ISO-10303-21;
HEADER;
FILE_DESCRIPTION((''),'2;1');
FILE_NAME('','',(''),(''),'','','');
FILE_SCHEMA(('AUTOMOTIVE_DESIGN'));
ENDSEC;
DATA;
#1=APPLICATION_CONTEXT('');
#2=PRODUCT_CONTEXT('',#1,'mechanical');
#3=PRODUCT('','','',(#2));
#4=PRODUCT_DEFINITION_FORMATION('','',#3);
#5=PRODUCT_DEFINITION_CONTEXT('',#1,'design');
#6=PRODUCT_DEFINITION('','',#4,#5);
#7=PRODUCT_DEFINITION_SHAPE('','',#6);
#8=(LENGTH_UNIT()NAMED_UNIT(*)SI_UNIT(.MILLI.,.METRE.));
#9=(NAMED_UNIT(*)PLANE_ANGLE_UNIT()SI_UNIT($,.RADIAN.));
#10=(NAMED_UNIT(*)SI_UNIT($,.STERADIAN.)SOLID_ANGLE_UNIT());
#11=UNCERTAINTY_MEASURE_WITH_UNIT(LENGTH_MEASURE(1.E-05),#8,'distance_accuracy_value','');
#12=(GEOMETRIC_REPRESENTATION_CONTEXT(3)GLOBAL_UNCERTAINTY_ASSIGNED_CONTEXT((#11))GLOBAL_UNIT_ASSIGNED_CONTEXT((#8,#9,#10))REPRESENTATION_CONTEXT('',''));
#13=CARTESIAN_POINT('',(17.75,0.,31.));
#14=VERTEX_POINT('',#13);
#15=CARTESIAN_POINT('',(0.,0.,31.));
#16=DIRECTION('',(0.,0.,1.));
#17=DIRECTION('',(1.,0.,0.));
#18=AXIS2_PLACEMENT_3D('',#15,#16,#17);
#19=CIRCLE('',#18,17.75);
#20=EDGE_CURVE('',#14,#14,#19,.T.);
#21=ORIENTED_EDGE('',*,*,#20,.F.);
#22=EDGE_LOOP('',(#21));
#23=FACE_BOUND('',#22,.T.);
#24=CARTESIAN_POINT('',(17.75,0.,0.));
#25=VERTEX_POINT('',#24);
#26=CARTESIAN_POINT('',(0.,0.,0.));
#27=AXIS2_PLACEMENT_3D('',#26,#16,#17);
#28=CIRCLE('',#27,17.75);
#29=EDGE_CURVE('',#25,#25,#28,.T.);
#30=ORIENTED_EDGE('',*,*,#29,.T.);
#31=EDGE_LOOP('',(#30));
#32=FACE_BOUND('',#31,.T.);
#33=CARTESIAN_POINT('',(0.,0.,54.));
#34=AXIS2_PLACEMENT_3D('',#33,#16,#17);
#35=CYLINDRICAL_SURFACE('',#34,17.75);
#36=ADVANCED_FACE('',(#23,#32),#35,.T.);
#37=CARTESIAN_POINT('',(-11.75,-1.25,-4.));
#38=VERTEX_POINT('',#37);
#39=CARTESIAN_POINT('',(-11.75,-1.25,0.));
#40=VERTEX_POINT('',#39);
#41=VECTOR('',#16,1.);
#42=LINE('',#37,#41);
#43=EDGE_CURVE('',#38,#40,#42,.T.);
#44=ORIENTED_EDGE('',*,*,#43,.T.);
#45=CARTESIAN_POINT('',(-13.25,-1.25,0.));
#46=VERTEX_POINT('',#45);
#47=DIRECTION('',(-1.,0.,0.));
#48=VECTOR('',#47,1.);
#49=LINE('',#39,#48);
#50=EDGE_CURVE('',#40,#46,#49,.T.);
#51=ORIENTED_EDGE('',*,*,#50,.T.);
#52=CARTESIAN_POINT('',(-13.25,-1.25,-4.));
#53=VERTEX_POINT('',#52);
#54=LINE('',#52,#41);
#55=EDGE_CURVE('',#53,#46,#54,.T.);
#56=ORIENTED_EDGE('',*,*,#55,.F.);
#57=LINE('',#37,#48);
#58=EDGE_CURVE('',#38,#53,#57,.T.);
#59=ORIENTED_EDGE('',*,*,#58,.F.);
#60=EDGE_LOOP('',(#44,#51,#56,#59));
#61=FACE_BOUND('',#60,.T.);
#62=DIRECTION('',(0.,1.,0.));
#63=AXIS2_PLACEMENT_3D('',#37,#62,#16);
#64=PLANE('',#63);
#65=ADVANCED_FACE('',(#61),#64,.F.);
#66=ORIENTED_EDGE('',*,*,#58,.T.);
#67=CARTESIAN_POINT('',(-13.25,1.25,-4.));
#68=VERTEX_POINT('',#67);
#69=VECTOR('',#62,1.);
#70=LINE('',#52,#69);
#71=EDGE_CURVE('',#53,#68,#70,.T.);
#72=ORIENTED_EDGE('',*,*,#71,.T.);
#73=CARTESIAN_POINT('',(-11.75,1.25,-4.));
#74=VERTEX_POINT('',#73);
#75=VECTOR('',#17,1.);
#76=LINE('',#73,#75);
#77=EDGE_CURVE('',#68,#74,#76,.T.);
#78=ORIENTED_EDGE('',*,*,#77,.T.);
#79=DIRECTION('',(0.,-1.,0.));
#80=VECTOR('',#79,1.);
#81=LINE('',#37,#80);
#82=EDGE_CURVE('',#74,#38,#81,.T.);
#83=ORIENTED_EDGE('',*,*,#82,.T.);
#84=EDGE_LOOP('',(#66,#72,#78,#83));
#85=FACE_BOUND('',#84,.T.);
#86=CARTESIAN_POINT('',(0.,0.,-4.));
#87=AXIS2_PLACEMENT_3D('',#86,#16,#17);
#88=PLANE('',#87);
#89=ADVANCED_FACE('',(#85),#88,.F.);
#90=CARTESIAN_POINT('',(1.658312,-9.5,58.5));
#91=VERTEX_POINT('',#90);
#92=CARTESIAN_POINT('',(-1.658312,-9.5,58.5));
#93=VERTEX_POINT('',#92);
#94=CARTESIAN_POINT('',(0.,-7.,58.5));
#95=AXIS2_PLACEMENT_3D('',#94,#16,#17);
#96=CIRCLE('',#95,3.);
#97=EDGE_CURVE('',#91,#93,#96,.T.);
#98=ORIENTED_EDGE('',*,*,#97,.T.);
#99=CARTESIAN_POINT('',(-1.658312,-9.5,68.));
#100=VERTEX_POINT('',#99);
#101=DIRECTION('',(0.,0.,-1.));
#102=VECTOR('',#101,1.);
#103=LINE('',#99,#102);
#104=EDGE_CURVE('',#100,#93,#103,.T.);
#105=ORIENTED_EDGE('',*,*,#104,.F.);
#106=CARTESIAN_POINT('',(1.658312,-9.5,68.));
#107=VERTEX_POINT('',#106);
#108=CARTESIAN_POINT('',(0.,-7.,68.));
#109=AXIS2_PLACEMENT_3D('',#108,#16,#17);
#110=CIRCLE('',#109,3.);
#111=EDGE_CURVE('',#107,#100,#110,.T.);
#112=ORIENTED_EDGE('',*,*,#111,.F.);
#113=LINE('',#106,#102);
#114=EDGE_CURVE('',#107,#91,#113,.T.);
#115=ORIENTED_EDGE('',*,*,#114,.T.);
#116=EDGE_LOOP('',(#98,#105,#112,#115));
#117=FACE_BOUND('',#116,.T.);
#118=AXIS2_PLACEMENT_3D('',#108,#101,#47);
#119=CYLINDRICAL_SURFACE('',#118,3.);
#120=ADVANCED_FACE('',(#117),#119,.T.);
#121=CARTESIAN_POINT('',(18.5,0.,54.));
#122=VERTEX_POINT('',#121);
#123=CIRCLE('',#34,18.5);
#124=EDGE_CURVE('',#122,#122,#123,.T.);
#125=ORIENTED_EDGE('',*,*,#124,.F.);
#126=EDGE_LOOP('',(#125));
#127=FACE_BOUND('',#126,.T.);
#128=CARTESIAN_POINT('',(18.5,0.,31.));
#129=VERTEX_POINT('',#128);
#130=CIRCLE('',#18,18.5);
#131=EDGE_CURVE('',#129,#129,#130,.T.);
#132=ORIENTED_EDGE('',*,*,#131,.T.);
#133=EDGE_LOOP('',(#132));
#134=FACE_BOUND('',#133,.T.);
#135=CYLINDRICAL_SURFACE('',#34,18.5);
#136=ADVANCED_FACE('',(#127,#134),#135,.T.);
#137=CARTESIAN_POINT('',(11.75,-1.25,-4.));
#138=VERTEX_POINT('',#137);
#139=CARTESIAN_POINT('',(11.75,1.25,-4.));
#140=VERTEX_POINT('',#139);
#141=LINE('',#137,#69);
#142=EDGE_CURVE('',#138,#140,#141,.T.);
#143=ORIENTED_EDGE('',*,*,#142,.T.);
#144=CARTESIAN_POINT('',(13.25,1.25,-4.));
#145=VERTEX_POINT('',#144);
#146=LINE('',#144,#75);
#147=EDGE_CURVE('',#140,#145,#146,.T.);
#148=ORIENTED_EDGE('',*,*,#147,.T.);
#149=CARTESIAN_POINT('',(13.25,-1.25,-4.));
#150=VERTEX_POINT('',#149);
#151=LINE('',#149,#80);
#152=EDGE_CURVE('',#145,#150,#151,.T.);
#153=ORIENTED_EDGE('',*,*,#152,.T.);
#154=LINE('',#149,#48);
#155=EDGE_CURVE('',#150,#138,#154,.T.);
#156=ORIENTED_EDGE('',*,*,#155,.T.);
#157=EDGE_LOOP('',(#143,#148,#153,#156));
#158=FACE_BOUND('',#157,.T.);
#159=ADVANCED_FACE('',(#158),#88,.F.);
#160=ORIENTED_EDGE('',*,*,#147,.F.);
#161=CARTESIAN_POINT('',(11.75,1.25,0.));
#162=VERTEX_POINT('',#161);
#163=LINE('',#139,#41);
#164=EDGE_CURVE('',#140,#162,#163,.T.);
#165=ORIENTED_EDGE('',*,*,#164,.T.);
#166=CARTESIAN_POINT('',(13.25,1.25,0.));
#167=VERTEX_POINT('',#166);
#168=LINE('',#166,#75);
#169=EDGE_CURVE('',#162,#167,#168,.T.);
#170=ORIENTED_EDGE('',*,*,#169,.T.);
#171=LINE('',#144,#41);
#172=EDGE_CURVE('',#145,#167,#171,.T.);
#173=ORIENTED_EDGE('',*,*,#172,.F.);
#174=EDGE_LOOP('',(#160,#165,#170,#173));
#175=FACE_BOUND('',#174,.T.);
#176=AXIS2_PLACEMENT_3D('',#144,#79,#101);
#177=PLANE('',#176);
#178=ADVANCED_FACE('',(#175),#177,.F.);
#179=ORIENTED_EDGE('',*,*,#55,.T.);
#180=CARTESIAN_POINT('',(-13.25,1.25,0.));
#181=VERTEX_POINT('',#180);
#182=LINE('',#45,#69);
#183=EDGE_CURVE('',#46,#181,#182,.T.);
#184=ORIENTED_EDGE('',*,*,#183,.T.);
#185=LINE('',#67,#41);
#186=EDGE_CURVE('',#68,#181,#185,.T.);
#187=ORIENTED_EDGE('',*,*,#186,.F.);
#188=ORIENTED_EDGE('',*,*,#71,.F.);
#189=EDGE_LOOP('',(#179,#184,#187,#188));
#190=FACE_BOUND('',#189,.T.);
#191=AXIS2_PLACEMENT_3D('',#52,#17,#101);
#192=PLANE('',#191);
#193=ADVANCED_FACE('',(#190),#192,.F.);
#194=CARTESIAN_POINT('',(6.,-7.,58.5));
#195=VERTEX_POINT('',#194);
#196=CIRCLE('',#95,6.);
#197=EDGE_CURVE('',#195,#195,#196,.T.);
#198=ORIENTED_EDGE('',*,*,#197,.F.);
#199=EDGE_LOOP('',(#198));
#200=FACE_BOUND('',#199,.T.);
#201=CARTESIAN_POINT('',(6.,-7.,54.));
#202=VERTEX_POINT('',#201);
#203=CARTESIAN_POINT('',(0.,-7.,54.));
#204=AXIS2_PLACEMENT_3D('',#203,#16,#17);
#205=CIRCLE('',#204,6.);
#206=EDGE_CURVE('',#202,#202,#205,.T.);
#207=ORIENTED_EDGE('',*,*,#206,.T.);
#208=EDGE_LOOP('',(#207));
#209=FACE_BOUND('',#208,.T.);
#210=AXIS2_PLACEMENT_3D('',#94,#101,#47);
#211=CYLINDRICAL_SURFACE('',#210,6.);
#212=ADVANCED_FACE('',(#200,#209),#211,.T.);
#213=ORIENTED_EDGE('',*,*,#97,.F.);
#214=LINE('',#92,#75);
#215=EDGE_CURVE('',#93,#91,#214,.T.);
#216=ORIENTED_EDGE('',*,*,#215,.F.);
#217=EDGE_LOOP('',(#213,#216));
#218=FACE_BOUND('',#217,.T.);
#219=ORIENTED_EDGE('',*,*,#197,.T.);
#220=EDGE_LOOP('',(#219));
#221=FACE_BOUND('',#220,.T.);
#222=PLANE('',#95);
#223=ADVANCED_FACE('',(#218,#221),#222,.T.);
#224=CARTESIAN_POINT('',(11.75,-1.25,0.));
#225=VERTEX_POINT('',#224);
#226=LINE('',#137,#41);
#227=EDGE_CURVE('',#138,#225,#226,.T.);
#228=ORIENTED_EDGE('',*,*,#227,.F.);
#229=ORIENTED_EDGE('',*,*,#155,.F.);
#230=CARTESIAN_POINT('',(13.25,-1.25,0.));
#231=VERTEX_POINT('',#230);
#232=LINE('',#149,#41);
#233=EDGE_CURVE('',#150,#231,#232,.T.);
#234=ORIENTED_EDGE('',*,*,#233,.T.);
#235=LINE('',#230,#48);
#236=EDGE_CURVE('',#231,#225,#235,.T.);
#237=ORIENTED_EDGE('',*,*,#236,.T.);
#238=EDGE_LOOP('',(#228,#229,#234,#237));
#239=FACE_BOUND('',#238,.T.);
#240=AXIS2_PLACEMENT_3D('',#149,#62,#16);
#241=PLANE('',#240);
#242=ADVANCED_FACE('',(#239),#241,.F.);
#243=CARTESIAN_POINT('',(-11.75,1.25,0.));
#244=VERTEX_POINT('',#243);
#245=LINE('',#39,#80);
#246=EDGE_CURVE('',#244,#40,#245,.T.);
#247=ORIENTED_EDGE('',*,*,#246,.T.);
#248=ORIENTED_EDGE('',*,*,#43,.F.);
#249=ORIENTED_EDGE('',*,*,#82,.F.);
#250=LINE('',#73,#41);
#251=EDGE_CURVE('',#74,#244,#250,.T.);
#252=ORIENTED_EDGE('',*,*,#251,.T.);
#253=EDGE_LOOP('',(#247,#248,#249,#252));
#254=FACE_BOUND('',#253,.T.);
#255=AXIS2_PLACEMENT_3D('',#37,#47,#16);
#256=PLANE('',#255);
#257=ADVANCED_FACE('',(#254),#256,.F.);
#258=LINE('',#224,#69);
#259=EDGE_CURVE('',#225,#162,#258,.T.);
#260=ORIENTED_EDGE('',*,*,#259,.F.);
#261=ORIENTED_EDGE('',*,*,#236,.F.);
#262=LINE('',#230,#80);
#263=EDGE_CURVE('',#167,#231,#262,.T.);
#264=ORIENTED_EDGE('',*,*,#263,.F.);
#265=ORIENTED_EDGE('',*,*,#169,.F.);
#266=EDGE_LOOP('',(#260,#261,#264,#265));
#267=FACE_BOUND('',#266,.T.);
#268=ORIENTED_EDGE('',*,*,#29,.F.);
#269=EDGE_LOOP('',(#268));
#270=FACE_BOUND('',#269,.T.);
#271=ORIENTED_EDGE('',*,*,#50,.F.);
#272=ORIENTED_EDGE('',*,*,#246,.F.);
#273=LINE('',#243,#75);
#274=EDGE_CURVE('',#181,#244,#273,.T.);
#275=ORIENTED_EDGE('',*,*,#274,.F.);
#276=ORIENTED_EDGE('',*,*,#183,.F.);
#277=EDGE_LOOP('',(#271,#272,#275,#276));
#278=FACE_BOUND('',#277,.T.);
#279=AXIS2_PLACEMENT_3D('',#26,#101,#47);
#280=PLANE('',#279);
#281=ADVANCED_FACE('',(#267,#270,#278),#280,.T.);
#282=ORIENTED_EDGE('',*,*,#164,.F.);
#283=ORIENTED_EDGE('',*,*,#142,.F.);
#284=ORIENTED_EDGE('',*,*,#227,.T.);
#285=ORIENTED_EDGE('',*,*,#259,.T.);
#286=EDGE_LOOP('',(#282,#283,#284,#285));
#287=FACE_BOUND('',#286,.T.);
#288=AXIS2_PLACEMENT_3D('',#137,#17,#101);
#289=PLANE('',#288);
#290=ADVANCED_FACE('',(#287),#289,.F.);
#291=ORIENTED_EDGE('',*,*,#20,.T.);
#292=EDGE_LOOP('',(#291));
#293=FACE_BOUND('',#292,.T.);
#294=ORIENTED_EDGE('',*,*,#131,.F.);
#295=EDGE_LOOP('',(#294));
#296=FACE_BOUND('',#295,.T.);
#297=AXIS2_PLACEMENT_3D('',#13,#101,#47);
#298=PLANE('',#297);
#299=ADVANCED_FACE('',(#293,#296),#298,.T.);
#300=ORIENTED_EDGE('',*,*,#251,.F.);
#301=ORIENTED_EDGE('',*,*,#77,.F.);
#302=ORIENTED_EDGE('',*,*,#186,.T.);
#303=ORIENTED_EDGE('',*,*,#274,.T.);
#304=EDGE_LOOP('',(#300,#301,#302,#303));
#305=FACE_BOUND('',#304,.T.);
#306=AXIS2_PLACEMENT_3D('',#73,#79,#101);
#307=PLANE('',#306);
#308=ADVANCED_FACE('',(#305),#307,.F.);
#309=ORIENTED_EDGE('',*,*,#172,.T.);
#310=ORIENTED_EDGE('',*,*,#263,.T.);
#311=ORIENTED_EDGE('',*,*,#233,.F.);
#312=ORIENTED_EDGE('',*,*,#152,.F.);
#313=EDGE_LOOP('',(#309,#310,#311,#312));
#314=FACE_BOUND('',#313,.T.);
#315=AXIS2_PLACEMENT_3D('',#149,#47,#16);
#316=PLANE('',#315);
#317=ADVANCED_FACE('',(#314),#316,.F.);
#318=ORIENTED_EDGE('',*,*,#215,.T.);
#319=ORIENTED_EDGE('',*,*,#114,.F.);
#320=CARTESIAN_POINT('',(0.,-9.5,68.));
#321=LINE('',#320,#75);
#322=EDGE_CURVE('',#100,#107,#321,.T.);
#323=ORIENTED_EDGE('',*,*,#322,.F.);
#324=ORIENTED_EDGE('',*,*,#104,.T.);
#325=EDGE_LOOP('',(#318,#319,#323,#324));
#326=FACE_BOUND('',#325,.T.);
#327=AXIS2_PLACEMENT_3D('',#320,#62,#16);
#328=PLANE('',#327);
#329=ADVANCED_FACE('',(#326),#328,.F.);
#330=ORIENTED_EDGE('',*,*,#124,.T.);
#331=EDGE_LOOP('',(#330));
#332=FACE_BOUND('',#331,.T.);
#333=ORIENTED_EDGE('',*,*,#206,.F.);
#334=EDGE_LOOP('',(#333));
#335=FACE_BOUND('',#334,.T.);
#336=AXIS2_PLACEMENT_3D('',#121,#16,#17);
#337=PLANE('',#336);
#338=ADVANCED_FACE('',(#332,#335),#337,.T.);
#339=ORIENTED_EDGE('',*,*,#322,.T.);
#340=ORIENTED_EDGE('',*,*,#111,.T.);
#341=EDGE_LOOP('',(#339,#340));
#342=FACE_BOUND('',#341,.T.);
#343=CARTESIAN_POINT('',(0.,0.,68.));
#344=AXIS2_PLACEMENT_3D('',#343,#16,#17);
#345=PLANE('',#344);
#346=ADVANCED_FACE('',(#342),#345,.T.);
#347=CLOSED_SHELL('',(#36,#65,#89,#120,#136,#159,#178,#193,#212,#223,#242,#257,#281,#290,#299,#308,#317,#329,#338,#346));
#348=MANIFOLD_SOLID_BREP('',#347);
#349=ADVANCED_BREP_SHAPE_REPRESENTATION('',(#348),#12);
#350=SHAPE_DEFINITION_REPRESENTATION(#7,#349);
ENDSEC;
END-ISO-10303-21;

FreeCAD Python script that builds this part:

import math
import FreeCAD as App
import Part
import Sketcher

V = App.Vector
Q = App.Units.Quantity

doc = App.newDocument("Part")
body = doc.addObject("PartDesign::Body", "Body")

# Sketch on XZ plane
sketch1 = doc.addObject("Sketcher::SketchObject", "Sketch")
body.addObject(sketch1)
sketch1.AttachmentSupport = (doc.XZ_Plane, [""])
sketch1.MapMode = "FlatFace"
sketch1.addGeometry([
    Part.LineSegment(V(0, 0, 0), V(0, 54, 0)),  # 0
    Part.LineSegment(V(0, 54, 0), V(18.5, 54, 0)),  # 1
    Part.LineSegment(V(18.5, 54, 0), V(18.5, 31, 0)),  # 2
    Part.LineSegment(V(18.5, 31, 0), V(17.8, 31, 0)),  # 3
    Part.LineSegment(V(17.8, 31, 0), V(17.8, 0, 0)),  # 4
    Part.LineSegment(V(17.8, 0, 0), V(0, 0, 0)),  # 5
], False)
sketch1.addConstraint([
    Sketcher.Constraint("Coincident", 0, 2, 1, 1),
    Sketcher.Constraint("Coincident", 1, 2, 2, 1),
    Sketcher.Constraint("Coincident", 2, 2, 3, 1),
    Sketcher.Constraint("Coincident", 3, 2, 4, 1),
    Sketcher.Constraint("Coincident", 4, 2, 5, 1),
    Sketcher.Constraint("Coincident", 5, 2, 0, 1),
    Sketcher.Constraint("Vertical", 0),
    Sketcher.Constraint("Horizontal", 1),
    Sketcher.Constraint("Vertical", 2),
    Sketcher.Constraint("Horizontal", 3),
    Sketcher.Constraint("Vertical", 4),
    Sketcher.Constraint("Horizontal", 5),
    Sketcher.Constraint("Coincident", 5, 2, -1, 1),
    Sketcher.Constraint("DistanceY", 0, 1, 0, 2, Q("54 mm")),
    Sketcher.Constraint("DistanceY", 2, 2, 2, 1, Q("23 mm")),
    Sketcher.Constraint("DistanceX", 1, 1, 1, 2, Q("18.5 mm")),
    Sketcher.Constraint("DistanceX", 3, 2, 3, 1, Q("0.75 mm")),
])
revolution = doc.addObject("PartDesign::Revolution", "Revolution")
body.addObject(revolution)
revolution.Profile = sketch1
revolution.ReferenceAxis = (sketch1, ["V_Axis"])
revolution.Angle = 360

# Sketch on XY plane
sketch2 = doc.addObject("Sketcher::SketchObject", "Sketch001")
body.addObject(sketch2)
sketch2.AttachmentSupport = (doc.XY_Plane, [""])
sketch2.MapMode = "FlatFace"
sketch2.addGeometry([
    Part.LineSegment(V(13.2, 1.2, 0), V(13.2, -1.2, 0)),  # 0
    Part.LineSegment(V(13.2, -1.2, 0), V(11.8, -1.2, 0)),  # 1
    Part.LineSegment(V(11.8, -1.2, 0), V(11.8, 1.2, 0)),  # 2
    Part.LineSegment(V(11.8, 1.2, 0), V(13.2, 1.2, 0)),  # 3
    Part.LineSegment(V(-11.8, 1.2, 0), V(-11.8, -1.2, 0)),  # 4
    Part.LineSegment(V(-11.8, -1.2, 0), V(-13.2, -1.2, 0)),  # 5
    Part.LineSegment(V(-13.2, -1.2, 0), V(-13.2, 1.2, 0)),  # 6
    Part.LineSegment(V(-13.2, 1.2, 0), V(-11.8, 1.2, 0)),  # 7
], False)
sketch2.addConstraint([
    Sketcher.Constraint("Coincident", 0, 2, 1, 1),
    Sketcher.Constraint("Coincident", 1, 2, 2, 1),
    Sketcher.Constraint("Coincident", 2, 2, 3, 1),
    Sketcher.Constraint("Coincident", 3, 2, 0, 1),
    Sketcher.Constraint("Coincident", 4, 2, 5, 1),
    Sketcher.Constraint("Coincident", 5, 2, 6, 1),
    Sketcher.Constraint("Coincident", 6, 2, 7, 1),
    Sketcher.Constraint("Coincident", 7, 2, 4, 1),
    Sketcher.Constraint("Vertical", 0),
    Sketcher.Constraint("Horizontal", 1),
    Sketcher.Constraint("Vertical", 2),
    Sketcher.Constraint("Horizontal", 3),
    Sketcher.Constraint("Vertical", 4),
    Sketcher.Constraint("Horizontal", 5),
    Sketcher.Constraint("Vertical", 6),
    Sketcher.Constraint("Horizontal", 7),
    Sketcher.Constraint("Symmetric", 2, 2, 4, 2, -1, 1),
    Sketcher.Constraint("Symmetric", 0, 2, 6, 2, -1, 1),
    Sketcher.Constraint("Horizontal", 1, 2, 4, 2),
    Sketcher.Constraint("DistanceX", 1, 2, 1, 1, Q("1.5 mm")),
    Sketcher.Constraint("DistanceY", 0, 2, 0, 1, Q("2.5 mm")),
    Sketcher.Constraint("DistanceX", 4, 2, 0, 2, Q("25 mm")),
])
pad1 = doc.addObject("PartDesign::Pad", "Pad")
body.addObject(pad1)
pad1.Profile = sketch2
pad1.Length = 4
pad1.Reversed = True

# Sketch on XY plane
sketch3 = doc.addObject("Sketcher::SketchObject", "Sketch002")
body.addObject(sketch3)
sketch3.AttachmentSupport = (doc.XY_Plane, [""])
sketch3.MapMode = "FlatFace"
sketch3.AttachmentOffset = App.Placement(V(0, 0, 54), App.Rotation())
sketch3.addGeometry([
    Part.Circle(V(0, -7, 0), V(0, 0, 1), 6),
    Part.LineSegment(V(1.7, -9.5, 0), V(-1.7, -9.5, 0)),
    Part.ArcOfCircle(Part.Circle(V(0, -7, 0), V(0, 0, 1), 3), math.radians(-56), math.radians(236)),
], False)
sketch3.addConstraint([
    Sketcher.Constraint("Coincident", 1, 1, 2, 1),
    Sketcher.Constraint("Coincident", 2, 2, 1, 2),
    Sketcher.Constraint("Horizontal", 1),
    Sketcher.Constraint("Coincident", 2, 3, 0, 3),
    Sketcher.Constraint("PointOnObject", 0, 3, -2),
    Sketcher.Constraint("Diameter", 0, Q("12 mm")),
    Sketcher.Constraint("Radius", 2, Q("3 mm")),
    Sketcher.Constraint("DistanceY", 0, 3, -1, 1, Q("7 mm")),
    Sketcher.Constraint("DistanceY", 1, 1, -1, 1, Q("9.5 mm")),
])
pad2 = doc.addObject("PartDesign::Pad", "Pad001")
body.addObject(pad2)
pad2.Profile = sketch3
pad2.Length = 4.5

# Sketch on XY plane
sketch4 = doc.addObject("Sketcher::SketchObject", "Sketch003")
body.addObject(sketch4)
sketch4.AttachmentSupport = (doc.XY_Plane, [""])
sketch4.MapMode = "FlatFace"
sketch4.AttachmentOffset = App.Placement(V(0, 0, 54), App.Rotation())
sketch4.addGeometry([
    Part.LineSegment(V(-1.7, -9.5, 0), V(1.7, -9.5, 0)),
    Part.ArcOfCircle(Part.Circle(V(0, -7, 0), V(0, 0, 1), 3), math.radians(-56), math.radians(236)),
], False)
sketch4.addConstraint([
    Sketcher.Constraint("Coincident", 0, 1, 1, 2),
    Sketcher.Constraint("Coincident", 1, 1, 0, 2),
    Sketcher.Constraint("Horizontal", 0),
    Sketcher.Constraint("PointOnObject", 1, 3, -2),
    Sketcher.Constraint("Radius", 1, Q("3 mm")),
    Sketcher.Constraint("DistanceY", 1, 3, -1, 1, Q("7 mm")),
    Sketcher.Constraint("DistanceY", 0, 1, -1, 1, Q("9.5 mm")),
])
pad3 = doc.addObject("PartDesign::Pad", "Pad002")
body.addObject(pad3)
pad3.Profile = sketch4
pad3.Length = 14

doc.recompute()
